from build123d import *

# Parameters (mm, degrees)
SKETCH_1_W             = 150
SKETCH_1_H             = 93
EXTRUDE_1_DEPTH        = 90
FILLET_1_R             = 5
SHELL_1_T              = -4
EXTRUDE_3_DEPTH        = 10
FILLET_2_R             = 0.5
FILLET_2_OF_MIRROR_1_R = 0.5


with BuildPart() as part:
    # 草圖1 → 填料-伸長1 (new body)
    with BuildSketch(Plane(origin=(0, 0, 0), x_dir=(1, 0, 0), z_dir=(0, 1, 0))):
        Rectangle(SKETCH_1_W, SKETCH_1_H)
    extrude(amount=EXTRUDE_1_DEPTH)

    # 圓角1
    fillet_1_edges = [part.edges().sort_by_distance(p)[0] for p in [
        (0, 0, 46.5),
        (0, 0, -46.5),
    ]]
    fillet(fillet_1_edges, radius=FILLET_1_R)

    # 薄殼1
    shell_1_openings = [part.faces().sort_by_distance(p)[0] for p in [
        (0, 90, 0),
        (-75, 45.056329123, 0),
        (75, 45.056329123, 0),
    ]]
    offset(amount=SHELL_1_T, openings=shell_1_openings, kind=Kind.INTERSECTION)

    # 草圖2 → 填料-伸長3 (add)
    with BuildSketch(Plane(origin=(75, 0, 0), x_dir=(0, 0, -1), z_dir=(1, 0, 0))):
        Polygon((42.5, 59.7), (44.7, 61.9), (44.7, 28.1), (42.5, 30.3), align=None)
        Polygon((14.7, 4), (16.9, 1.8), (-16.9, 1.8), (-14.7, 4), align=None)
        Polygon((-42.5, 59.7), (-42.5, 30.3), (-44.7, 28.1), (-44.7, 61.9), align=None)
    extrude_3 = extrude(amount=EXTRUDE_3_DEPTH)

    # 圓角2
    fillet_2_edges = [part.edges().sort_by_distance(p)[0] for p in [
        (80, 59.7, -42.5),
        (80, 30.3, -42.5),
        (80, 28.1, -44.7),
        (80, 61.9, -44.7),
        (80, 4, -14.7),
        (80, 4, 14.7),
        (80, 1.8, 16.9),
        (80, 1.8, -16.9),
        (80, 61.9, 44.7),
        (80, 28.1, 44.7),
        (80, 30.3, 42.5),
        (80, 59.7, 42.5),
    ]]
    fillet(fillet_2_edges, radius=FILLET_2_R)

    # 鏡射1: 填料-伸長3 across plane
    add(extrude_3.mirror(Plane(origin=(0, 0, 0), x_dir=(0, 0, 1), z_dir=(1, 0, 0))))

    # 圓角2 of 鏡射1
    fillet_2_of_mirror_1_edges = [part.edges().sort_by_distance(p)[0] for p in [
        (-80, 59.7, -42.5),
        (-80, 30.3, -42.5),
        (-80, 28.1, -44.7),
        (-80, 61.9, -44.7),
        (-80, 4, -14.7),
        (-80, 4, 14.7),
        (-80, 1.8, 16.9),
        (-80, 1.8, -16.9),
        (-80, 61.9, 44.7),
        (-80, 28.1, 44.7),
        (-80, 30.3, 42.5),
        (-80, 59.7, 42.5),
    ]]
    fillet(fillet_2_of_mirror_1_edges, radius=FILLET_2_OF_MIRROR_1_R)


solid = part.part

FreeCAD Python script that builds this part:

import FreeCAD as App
import Part
import Sketcher
from FreeCAD import Vector


def edges_at(feature, points):
    """Names of the edges that pass closest to the given points."""
    edges = feature.Shape.Edges
    near = lambda p: min(range(len(edges)), key=lambda i: edges[i].distToShape(Part.Vertex(*p))[0])
    return sorted({f"Edge{near(p) + 1}" for p in points})


def faces_at(feature, points):
    """Names of the faces that lie closest to the given points."""
    faces = feature.Shape.Faces
    near = lambda p: min(range(len(faces)), key=lambda i: faces[i].distToShape(Part.Vertex(*p))[0])
    return sorted({f"Face{near(p) + 1}" for p in points})

doc = App.newDocument("Part")
body = doc.addObject("PartDesign::Body", "Body")

sketch1 = doc.addObject("Sketcher::SketchObject", "Sketch")
body.addObject(sketch1)
sketch1.AttachmentSupport = (doc.XZ_Plane, [""])
sketch1.MapMode = "FlatFace"
sketch1.addGeometry(Part.LineSegment(Vector(-75, -46, 0), Vector(-75, 46, 0)), False)
sketch1.addGeometry(Part.LineSegment(Vector(-75, 46, 0), Vector(75, 46, 0)), False)
sketch1.addGeometry(Part.LineSegment(Vector(75, 46, 0), Vector(75, -46, 0)), False)
sketch1.addGeometry(Part.LineSegment(Vector(75, -46, 0), Vector(-75, -46, 0)), False)
sketch1.addConstraint(Sketcher.Constraint("Coincident", 0, 2, 1, 1))
sketch1.addConstraint(Sketcher.Constraint("Coincident", 1, 2, 2, 1))
sketch1.addConstraint(Sketcher.Constraint("Coincident", 2, 2, 3, 1))
sketch1.addConstraint(Sketcher.Constraint("Coincident", 3, 2, 0, 1))
sketch1.addConstraint(Sketcher.Constraint("Vertical", 0))
sketch1.addConstraint(Sketcher.Constraint("Horizontal", 1))
sketch1.addConstraint(Sketcher.Constraint("Vertical", 2))
sketch1.addConstraint(Sketcher.Constraint("Horizontal", 3))
sketch1.addConstraint(Sketcher.Constraint("Symmetric", 0, 2, 2, 2, -1, 1))
sketch1.addConstraint(Sketcher.Constraint("DistanceX", 1, 1, 1, 2, 150.0))
sketch1.addConstraint(Sketcher.Constraint("DistanceY", 0, 1, 0, 2, 93.0))
pad1 = doc.addObject("PartDesign::Pad", "Pad")
body.addObject(pad1)
pad1.Profile = sketch1
pad1.Length = 90
pad1.Reversed = True
doc.recompute()

fillet = doc.addObject("PartDesign::Fillet", "Fillet")
body.addObject(fillet)
fillet.Base = (pad1, edges_at(pad1, [(0, 0, 46.5), (0, 0, -46.5)]))
fillet.Radius = 5
doc.recompute()

thickness = doc.addObject("PartDesign::Thickness", "Thickness")
body.addObject(thickness)
thickness.Base = (fillet, faces_at(fillet, [(0, 90, 0), (-75, 45, 0), (75, 45, 0)]))
thickness.Value = 4
thickness.Reversed = True
thickness.Join = "Intersection"

sketch2 = doc.addObject("Sketcher::SketchObject", "Sketch001")
body.addObject(sketch2)
sketch2.AttachmentSupport = (doc.YZ_Plane, [""])
sketch2.MapMode = "FlatFace"
sketch2.AttachmentOffset = App.Placement(Vector(0, 0, 75), App.Rotation())
sketch2.addGeometry(Part.LineSegment(Vector(61.9, -44.7, 0), Vector(59.7, -42.5, 0)), False)
sketch2.addGeometry(Part.LineSegment(Vector(59.7, -42.5, 0), Vector(30.3, -42.5, 0)), False)
sketch2.addGeometry(Part.LineSegment(Vector(30.3, -42.5, 0), Vector(28.1, -44.7, 0)), False)
sketch2.addGeometry(Part.LineSegment(Vector(28.1, -44.7, 0), Vector(61.9, -44.7, 0)), False)
sketch2.addGeometry(Part.LineSegment(Vector(1.8, -16.9, 0), Vector(4, -14.7, 0)), False)
sketch2.addGeometry(Part.LineSegment(Vector(4, -14.7, 0), Vector(4, 14.7, 0)), False)
sketch2.addGeometry(Part.LineSegment(Vector(4, 14.7, 0), Vector(1.8, 16.9, 0)), False)
sketch2.addGeometry(Part.LineSegment(Vector(1.8, 16.9, 0), Vector(1.8, -16.9, 0)), False)
sketch2.addGeometry(Part.LineSegment(Vector(30.3, 42.5, 0), Vector(59.7, 42.5, 0)), False)
sketch2.addGeometry(Part.LineSegment(Vector(59.7, 42.5, 0), Vector(61.9, 44.7, 0)), False)
sketch2.addGeometry(Part.LineSegment(Vector(61.9, 44.7, 0), Vector(28.1, 44.7, 0)), False)
sketch2.addGeometry(Part.LineSegment(Vector(28.1, 44.7, 0), Vector(30.3, 42.5, 0)), False)
sketch2.addConstraint(Sketcher.Constraint("Coincident", 0, 2, 1, 1))
sketch2.addConstraint(Sketcher.Constraint("Coincident", 1, 2, 2, 1))
sketch2.addConstraint(Sketcher.Constraint("Coincident", 2, 2, 3, 1))
sketch2.addConstraint(Sketcher.Constraint("Coincident", 3, 2, 0, 1))
sketch2.addConstraint(Sketcher.Constraint("Coincident", 4, 2, 5, 1))
sketch2.addConstraint(Sketcher.Constraint("Coincident", 5, 2, 6, 1))
sketch2.addConstraint(Sketcher.Constraint("Coincident", 6, 2, 7, 1))
sketch2.addConstraint(Sketcher.Constraint("Coincident", 7, 2, 4, 1))
sketch2.addConstraint(Sketcher.Constraint("Coincident", 8, 2, 9, 1))
sketch2.addConstraint(Sketcher.Constraint("Coincident", 9, 2, 10, 1))
sketch2.addConstraint(Sketcher.Constraint("Coincident", 10, 2, 11, 1))
sketch2.addConstraint(Sketcher.Constraint("Coincident", 11, 2, 8, 1))
sketch2.addConstraint(Sketcher.Constraint("Horizontal", 1))
sketch2.addConstraint(Sketcher.Constraint("Horizontal", 3))
sketch2.addConstraint(Sketcher.Constraint("Vertical", 5))
sketch2.addConstraint(Sketcher.Constraint("Vertical", 7))
sketch2.addConstraint(Sketcher.Constraint("Horizontal", 8))
sketch2.addConstraint(Sketcher.Constraint("Horizontal", 10))
sketch2.addConstraint(Sketcher.Constraint("Symmetric", 0, 2, 8, 2, -1))
sketch2.addConstraint(Sketcher.Constraint("Symmetric", 3, 2, 9, 2, -1))
sketch2.addConstraint(Sketcher.Constraint("Perpendicular", 0, 2))
sketch2.addConstraint(Sketcher.Constraint("Parallel", 2, 4))
sketch2.addConstraint(Sketcher.Constraint("Perpendicular", 4, 6))
sketch2.addConstraint(Sketcher.Constraint("Perpendicular", 6, 9))
sketch2.addConstraint(Sketcher.Constraint("Perpendicular", 9, 11))
sketch2.addConstraint(Sketcher.Constraint("Vertical", 2, 2, 10, 2))
sketch2.addConstraint(Sketcher.Constraint("Equal", 8, 5))
sketch2.addConstraint(Sketcher.Constraint("Equal", 10, 7))
sketch2.addConstraint(Sketcher.Constraint("DistanceX", 1, 2, 1, 1, 29.4))
sketch2.addConstraint(Sketcher.Constraint("DistanceX", 3, 1, 3, 2, 33.8))
sketch2.addConstraint(Sketcher.Constraint("DistanceX", -1, 1, 4, 2, 4.0))
sketch2.addConstraint(Sketcher.Constraint("DistanceY", 2, 2, 4, 2, 30.0))
sketch2.addConstraint(Sketcher.Constraint("DistanceY", 0, 2, 8, 2, 85.0))
sketch2.addConstraint(Sketcher.Constraint("DistanceX", -1, 1, 0, 2, 59.7))
pad2 = doc.addObject("PartDesign::Pad", "Pad001")
body.addObject(pad2)
pad2.Profile = sketch2
pad2.Length = 10
doc.recompute()

fillet2 = doc.addObject("PartDesign::Fillet", "Fillet001")
body.addObject(fillet2)
fillet2.Base = (pad2, edges_at(pad2, [
    (80, 59.7, -42.5),
    (80, 30.3, -42.5),
    (80, 28.1, -44.7),
    (80, 61.9, -44.7),
    (80, 4, -14.7),
    (80, 4, 14.7),
    (80, 1.8, 16.9),
    (80, 1.8, -16.9),
    (80, 61.9, 44.7),
    (80, 28.1, 44.7),
    (80, 30.3, 42.5),
    (80, 59.7, 42.5),
]))
fillet2.Radius = 0.5
doc.recompute()

mirrored = doc.addObject("PartDesign::Mirrored", "Mirrored")
body.addObject(mirrored)
mirrored.Originals = [pad2]
mirrored.MirrorPlane = (doc.YZ_Plane, [""])
body.Tip = mirrored
doc.recompute()

fillet3 = doc.addObject("PartDesign::Fillet", "Fillet002")
body.addObject(fillet3)
fillet3.Base = (mirrored, edges_at(mirrored, [
    (-80, 59.7, -42.5),
    (-80, 30.3, -42.5),
    (-80, 28.1, -44.7),
    (-80, 61.9, -44.7),
    (-80, 4, -14.7),
    (-80, 4, 14.7),
    (-80, 1.8, 16.9),
    (-80, 1.8, -16.9),
    (-80, 61.9, 44.7),
    (-80, 28.1, 44.7),
    (-80, 30.3, 42.5),
    (-80, 59.7, 42.5),
]))
fillet3.Radius = 0.5

doc.recompute()
